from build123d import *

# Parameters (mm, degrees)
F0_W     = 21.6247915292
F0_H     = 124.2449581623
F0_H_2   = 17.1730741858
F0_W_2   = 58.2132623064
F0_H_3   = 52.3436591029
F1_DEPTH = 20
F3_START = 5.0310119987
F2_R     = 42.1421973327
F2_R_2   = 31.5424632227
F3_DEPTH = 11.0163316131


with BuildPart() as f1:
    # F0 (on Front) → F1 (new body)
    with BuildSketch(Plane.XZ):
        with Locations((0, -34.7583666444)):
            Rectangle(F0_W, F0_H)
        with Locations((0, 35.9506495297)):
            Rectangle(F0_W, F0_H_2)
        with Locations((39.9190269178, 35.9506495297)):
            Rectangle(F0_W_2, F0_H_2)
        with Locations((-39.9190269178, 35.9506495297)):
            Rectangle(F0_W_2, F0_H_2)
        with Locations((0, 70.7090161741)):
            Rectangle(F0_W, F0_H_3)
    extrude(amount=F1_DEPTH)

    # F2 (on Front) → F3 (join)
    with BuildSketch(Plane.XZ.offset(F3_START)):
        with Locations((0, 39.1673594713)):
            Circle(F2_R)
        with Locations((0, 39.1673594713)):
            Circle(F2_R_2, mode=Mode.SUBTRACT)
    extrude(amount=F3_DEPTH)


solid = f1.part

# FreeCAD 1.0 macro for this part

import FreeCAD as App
import Part
import Sketcher
from FreeCAD import Vector
Q = App.Units.Quantity

doc = App.newDocument("Part")
body = doc.addObject("PartDesign::Body", "Body")

sketch1 = body.newObject("Sketcher::SketchObject", "Sketch")
sketch1.AttachmentSupport = (doc.getObject("XZ_Plane"), [""])
sketch1.MapMode = "FlatFace"
sketch1.addGeometry(Part.LineSegment(Vector(-11, -97, 0), Vector(11, -97, 0)), False)
sketch1.addGeometry(Part.LineSegment(Vector(11, -97, 0), Vector(11, 27, 0)), False)
sketch1.addGeometry(Part.LineSegment(Vector(11, 27, 0), Vector(69, 27, 0)), False)
sketch1.addGeometry(Part.LineSegment(Vector(69, 27, 0), Vector(69, 45, 0)), False)
sketch1.addGeometry(Part.LineSegment(Vector(69, 45, 0), Vector(11, 45, 0)), False)
sketch1.addGeometry(Part.LineSegment(Vector(11, 45, 0), Vector(11, 97, 0)), False)
sketch1.addGeometry(Part.LineSegment(Vector(11, 97, 0), Vector(-11, 97, 0)), False)
sketch1.addGeometry(Part.LineSegment(Vector(-11, 97, 0), Vector(-11, 45, 0)), False)
sketch1.addGeometry(Part.LineSegment(Vector(-11, 45, 0), Vector(-69, 45, 0)), False)
sketch1.addGeometry(Part.LineSegment(Vector(-69, 45, 0), Vector(-69, 27, 0)), False)
sketch1.addGeometry(Part.LineSegment(Vector(-69, 27, 0), Vector(-11, 27, 0)), False)
sketch1.addGeometry(Part.LineSegment(Vector(-11, 27, 0), Vector(-11, -97, 0)), False)
sketch1.addConstraint(Sketcher.Constraint("Coincident", 0, 2, 1, 1))
sketch1.addConstraint(Sketcher.Constraint("Coincident", 1, 2, 2, 1))
sketch1.addConstraint(Sketcher.Constraint("Coincident", 2, 2, 3, 1))
sketch1.addConstraint(Sketcher.Constraint("Coincident", 3, 2, 4, 1))
sketch1.addConstraint(Sketcher.Constraint("Coincident", 4, 2, 5, 1))
sketch1.addConstraint(Sketcher.Constraint("Coincident", 5, 2, 6, 1))
sketch1.addConstraint(Sketcher.Constraint("Coincident", 6, 2, 7, 1))
sketch1.addConstraint(Sketcher.Constraint("Coincident", 7, 2, 8, 1))
sketch1.addConstraint(Sketcher.Constraint("Coincident", 8, 2, 9, 1))
sketch1.addConstraint(Sketcher.Constraint("Coincident", 9, 2, 10, 1))
sketch1.addConstraint(Sketcher.Constraint("Coincident", 10, 2, 11, 1))
sketch1.addConstraint(Sketcher.Constraint("Coincident", 11, 2, 0, 1))
sketch1.addConstraint(Sketcher.Constraint("Horizontal", 0))
sketch1.addConstraint(Sketcher.Constraint("Vertical", 1))
sketch1.addConstraint(Sketcher.Constraint("Horizontal", 2))
sketch1.addConstraint(Sketcher.Constraint("Vertical", 3))
sketch1.addConstraint(Sketcher.Constraint("Horizontal", 4))
sketch1.addConstraint(Sketcher.Constraint("Vertical", 5))
sketch1.addConstraint(Sketcher.Constraint("Horizontal", 6))
sketch1.addConstraint(Sketcher.Constraint("Vertical", 7))
sketch1.addConstraint(Sketcher.Constraint("Horizontal", 8))
sketch1.addConstraint(Sketcher.Constraint("Vertical", 9))
sketch1.addConstraint(Sketcher.Constraint("Horizontal", 10))
sketch1.addConstraint(Sketcher.Constraint("Vertical", 11))
sketch1.addConstraint(Sketcher.Constraint("Symmetric", 0, 2, 6, 2, -1, 1))
sketch1.addConstraint(Sketcher.Constraint("Symmetric", 4, 2, 7, 2, -2))
sketch1.addConstraint(Sketcher.Constraint("Symmetric", 2, 2, 9, 2, -2))
sketch1.addConstraint(Sketcher.Constraint("Vertical", 7, 2, 10, 2))
sketch1.addConstraint(Sketcher.Constraint("DistanceX", 0, 1, 0, 2, Q("21.624792 mm")))
sketch1.addConstraint(Sketcher.Constraint("DistanceY", 1, 1, 1, 2, Q("124.244958 mm")))
sketch1.addConstraint(Sketcher.Constraint("DistanceY", 5, 1, 5, 2, Q("52.343659 mm")))
sketch1.addConstraint(Sketcher.Constraint("DistanceX", 2, 1, 2, 2, Q("58.213262 mm")))
sketch1.addConstraint(Sketcher.Constraint("DistanceY", 3, 1, 3, 2, Q("17.173074 mm")))
pad1 = body.newObject("PartDesign::Pad", "Pad")
pad1.Profile = sketch1
pad1.Length = 20

sketch2 = body.newObject("Sketcher::SketchObject", "Sketch001")
sketch2.AttachmentSupport = (doc.getObject("XZ_Plane"), [""])
sketch2.MapMode = "FlatFace"
sketch2.AttachmentOffset = App.Placement(Vector(0, 0, 5.031012), App.Rotation())
sketch2.addGeometry(Part.Circle(Vector(0, 39, 0), Vector(0, 0, 1), 42), False)
sketch2.addGeometry(Part.Circle(Vector(0, 39, 0), Vector(0, 0, 1), 32), False)
sketch2.addConstraint(Sketcher.Constraint("Coincident", 1, 3, 0, 3))
sketch2.addConstraint(Sketcher.Constraint("PointOnObject", 0, 3, -2))
sketch2.addConstraint(Sketcher.Constraint("Diameter", 0, Q("84.284395 mm")))
sketch2.addConstraint(Sketcher.Constraint("Diameter", 1, Q("63.084926 mm")))
sketch2.addConstraint(Sketcher.Constraint("DistanceY", -1, 1, 0, 3, Q("39.167359 mm")))
pad2 = body.newObject("PartDesign::Pad", "Pad001")
pad2.Profile = sketch2
pad2.Length = 11.016332

doc.recompute()
